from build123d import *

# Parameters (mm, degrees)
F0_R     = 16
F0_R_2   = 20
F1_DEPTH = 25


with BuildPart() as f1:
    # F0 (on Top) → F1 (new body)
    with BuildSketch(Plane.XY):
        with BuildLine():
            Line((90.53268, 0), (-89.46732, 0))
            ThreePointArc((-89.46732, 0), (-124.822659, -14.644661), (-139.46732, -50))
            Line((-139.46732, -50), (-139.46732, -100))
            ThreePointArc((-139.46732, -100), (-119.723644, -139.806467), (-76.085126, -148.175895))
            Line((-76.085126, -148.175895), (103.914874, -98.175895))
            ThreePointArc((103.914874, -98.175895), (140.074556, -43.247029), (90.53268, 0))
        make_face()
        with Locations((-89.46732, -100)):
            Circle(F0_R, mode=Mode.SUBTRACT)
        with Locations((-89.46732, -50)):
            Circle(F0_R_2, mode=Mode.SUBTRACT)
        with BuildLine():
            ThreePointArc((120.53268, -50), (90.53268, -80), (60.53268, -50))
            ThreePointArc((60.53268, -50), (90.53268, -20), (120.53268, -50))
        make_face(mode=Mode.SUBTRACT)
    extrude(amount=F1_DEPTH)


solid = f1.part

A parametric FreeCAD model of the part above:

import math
import FreeCAD as App
import Part
import Sketcher

V = App.Vector

doc = App.newDocument("Part")
body = doc.addObject("PartDesign::Body", "Body")

sketch1 = body.newObject("Sketcher::SketchObject", "Sketch")
sketch1.AttachmentSupport = (doc.getObject("XY_Plane"), [""])
sketch1.MapMode = "FlatFace"
sketch1.addGeometry([
    Part.LineSegment(V(91, 0, 0), V(-89, 0, 0)),
    Part.ArcOfCircle(Part.Circle(V(-89, -50, 0), V(0, 0, 1), 50), math.radians(90), math.radians(180)),
    Part.LineSegment(V(-139, -50, 0), V(-139, -100, 0)),
    Part.ArcOfCircle(Part.Circle(V(-89, -100, 0), V(0, 0, 1), 50), math.radians(-180), math.radians(-74)),
    Part.LineSegment(V(-76, -148, 0), V(104, -98, 0)),
    Part.ArcOfCircle(Part.Circle(V(91, -50, 0), V(0, 0, 1), 50), math.radians(-74), math.radians(90)),
    Part.Circle(V(-89, -100, 0), V(0, 0, 1), 16),
    Part.Circle(V(-89, -50, 0), V(0, 0, 1), 20),
    Part.Circle(V(91, -50, 0), V(0, 0, 1), 30),
], False)
sketch1.addConstraint([
    Sketcher.Constraint("Tangent", 0, 2, 1, 1),
    Sketcher.Constraint("Tangent", 1, 2, 2, 1),
    Sketcher.Constraint("Tangent", 2, 2, 3, 1),
    Sketcher.Constraint("Tangent", 3, 2, 4, 1),
    Sketcher.Constraint("Tangent", 4, 2, 5, 1),
    Sketcher.Constraint("Tangent", 5, 2, 0, 1),
    Sketcher.Constraint("Horizontal", 0),
    Sketcher.Constraint("Vertical", 2),
    Sketcher.Constraint("Coincident", 6, 3, 3, 3),
    Sketcher.Constraint("Coincident", 7, 3, 1, 3),
    Sketcher.Constraint("Coincident", 8, 3, 5, 3),
    Sketcher.Constraint("Equal", 1, 3),
    Sketcher.Constraint("Equal", 3, 5),
    Sketcher.Constraint("PointOnObject", 0, 2, -1),
    Sketcher.Constraint("Diameter", 6, 32.0),
    Sketcher.Constraint("Diameter", 7, 40.0),
    Sketcher.Constraint("Diameter", 8, 60.0),
    Sketcher.Constraint("Radius", 1, 50.0),
    Sketcher.Constraint("DistanceX", 0, 2, 0, 1, 180.0),
    Sketcher.Constraint("DistanceY", 2, 2, 2, 1, 50.0),
    Sketcher.Constraint("DistanceX", 1, 3, -1, 1, 89.46732),
])
pad1 = body.newObject("PartDesign::Pad", "Pad")
pad1.Profile = sketch1
pad1.Length = 25

doc.recompute()
